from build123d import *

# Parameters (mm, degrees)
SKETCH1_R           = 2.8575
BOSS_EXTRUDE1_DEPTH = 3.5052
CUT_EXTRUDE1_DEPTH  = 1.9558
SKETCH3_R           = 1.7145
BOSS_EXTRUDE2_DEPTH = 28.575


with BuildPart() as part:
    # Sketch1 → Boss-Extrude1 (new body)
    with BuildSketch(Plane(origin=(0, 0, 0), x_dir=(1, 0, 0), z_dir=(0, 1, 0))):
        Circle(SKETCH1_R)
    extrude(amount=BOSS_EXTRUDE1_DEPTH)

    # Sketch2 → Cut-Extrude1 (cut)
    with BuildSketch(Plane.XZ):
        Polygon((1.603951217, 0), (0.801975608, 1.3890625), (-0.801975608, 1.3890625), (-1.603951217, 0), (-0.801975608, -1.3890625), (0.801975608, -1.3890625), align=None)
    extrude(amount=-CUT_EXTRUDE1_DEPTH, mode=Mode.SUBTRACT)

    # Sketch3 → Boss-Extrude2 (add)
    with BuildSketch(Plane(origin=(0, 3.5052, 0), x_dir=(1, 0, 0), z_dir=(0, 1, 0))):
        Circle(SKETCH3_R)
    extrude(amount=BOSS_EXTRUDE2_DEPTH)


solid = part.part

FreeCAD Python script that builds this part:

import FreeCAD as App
import Part
import Sketcher
from FreeCAD import Vector
Q = App.Units.Quantity

doc = App.newDocument("Part")
body = doc.addObject("PartDesign::Body", "Body")

# Sketch on XZ plane
sketch1 = body.newObject("Sketcher::SketchObject", "Sketch")
sketch1.AttachmentSupport = (doc.getObject("XZ_Plane"), [""])
sketch1.MapMode = "FlatFace"
sketch1.addGeometry(Part.Circle(Vector(0, 0, 0), Vector(0, 0, 1), 2.8575), False)
sketch1.addConstraint([
    Sketcher.Constraint("Coincident", 0, 3, -1, 1),
    Sketcher.Constraint("Diameter", 0, Q("0.225 in")),
])
pad1 = body.newObject("PartDesign::Pad", "Pad")
pad1.Profile = sketch1
pad1.Length = Q("0.138 in")
pad1.Reversed = True

# Sketch on XZ plane
sketch2 = body.newObject("Sketcher::SketchObject", "Sketch001")
sketch2.AttachmentSupport = (doc.getObject("XZ_Plane"), [""])
sketch2.MapMode = "FlatFace"
sketch2.addGeometry([
    Part.LineSegment(Vector(1.603951, 0, 0), Vector(0.801976, 1.389063, 0)),  # 0
    Part.LineSegment(Vector(0.801976, 1.389063, 0), Vector(-0.801976, 1.389063, 0)),  # 1
    Part.LineSegment(Vector(-0.801976, 1.389063, 0), Vector(-1.603951, 0, 0)),  # 2
    Part.LineSegment(Vector(-1.603951, 0, 0), Vector(-0.801976, -1.389063, 0)),  # 3
    Part.LineSegment(Vector(-0.801976, -1.389063, 0), Vector(0.801976, -1.389063, 0)),  # 4
    Part.LineSegment(Vector(0.801976, -1.389063, 0), Vector(1.603951, 0, 0)),  # 5
], False)
sketch2.addConstraint([
    Sketcher.Constraint("Coincident", 0, 2, 1, 1),
    Sketcher.Constraint("Coincident", 1, 2, 2, 1),
    Sketcher.Constraint("Coincident", 2, 2, 3, 1),
    Sketcher.Constraint("Coincident", 3, 2, 4, 1),
    Sketcher.Constraint("Coincident", 4, 2, 5, 1),
    Sketcher.Constraint("Coincident", 5, 2, 0, 1),
    Sketcher.Constraint("Horizontal", 1),
    Sketcher.Constraint("Horizontal", 4),
    Sketcher.Constraint("Symmetric", 0, 2, 3, 2, -1, 1),
    Sketcher.Constraint("Symmetric", 2, 2, 5, 2, -1, 1),
    Sketcher.Constraint("PointOnObject", 2, 2, -1),
    Sketcher.Constraint("Parallel", 2, 5),
    Sketcher.Constraint("Vertical", 1, 2, 3, 2),
    Sketcher.Constraint("Angle", 0, Q("120 deg")),
    Sketcher.Constraint("DistanceY", 3, 2, 1, 2, Q("0.109375 in")),
    Sketcher.Constraint("DistanceX", 1, 2, 1, 1, 1.603951),
])
pocket1 = body.newObject("PartDesign::Pocket", "Pocket")
pocket1.Profile = sketch2
pocket1.Length = Q("0.077 in")

# Sketch on XZ plane
sketch3 = body.newObject("Sketcher::SketchObject", "Sketch002")
sketch3.AttachmentSupport = (doc.getObject("XZ_Plane"), [""])
sketch3.MapMode = "FlatFace"
sketch3.AttachmentOffset = App.Placement(Vector(0, 0, -0.138 * 25.4), App.Rotation())
sketch3.addGeometry(Part.Circle(Vector(0, 0, 0), Vector(0, 0, 1), 1.7145), False)
sketch3.addConstraint([
    Sketcher.Constraint("Coincident", 0, 3, -1, 1),
    Sketcher.Constraint("Diameter", 0, Q("0.135 in")),
])
pad2 = body.newObject("PartDesign::Pad", "Pad001")
pad2.Profile = sketch3
pad2.Length = Q("1.125 in")
pad2.Reversed = True

doc.recompute()
